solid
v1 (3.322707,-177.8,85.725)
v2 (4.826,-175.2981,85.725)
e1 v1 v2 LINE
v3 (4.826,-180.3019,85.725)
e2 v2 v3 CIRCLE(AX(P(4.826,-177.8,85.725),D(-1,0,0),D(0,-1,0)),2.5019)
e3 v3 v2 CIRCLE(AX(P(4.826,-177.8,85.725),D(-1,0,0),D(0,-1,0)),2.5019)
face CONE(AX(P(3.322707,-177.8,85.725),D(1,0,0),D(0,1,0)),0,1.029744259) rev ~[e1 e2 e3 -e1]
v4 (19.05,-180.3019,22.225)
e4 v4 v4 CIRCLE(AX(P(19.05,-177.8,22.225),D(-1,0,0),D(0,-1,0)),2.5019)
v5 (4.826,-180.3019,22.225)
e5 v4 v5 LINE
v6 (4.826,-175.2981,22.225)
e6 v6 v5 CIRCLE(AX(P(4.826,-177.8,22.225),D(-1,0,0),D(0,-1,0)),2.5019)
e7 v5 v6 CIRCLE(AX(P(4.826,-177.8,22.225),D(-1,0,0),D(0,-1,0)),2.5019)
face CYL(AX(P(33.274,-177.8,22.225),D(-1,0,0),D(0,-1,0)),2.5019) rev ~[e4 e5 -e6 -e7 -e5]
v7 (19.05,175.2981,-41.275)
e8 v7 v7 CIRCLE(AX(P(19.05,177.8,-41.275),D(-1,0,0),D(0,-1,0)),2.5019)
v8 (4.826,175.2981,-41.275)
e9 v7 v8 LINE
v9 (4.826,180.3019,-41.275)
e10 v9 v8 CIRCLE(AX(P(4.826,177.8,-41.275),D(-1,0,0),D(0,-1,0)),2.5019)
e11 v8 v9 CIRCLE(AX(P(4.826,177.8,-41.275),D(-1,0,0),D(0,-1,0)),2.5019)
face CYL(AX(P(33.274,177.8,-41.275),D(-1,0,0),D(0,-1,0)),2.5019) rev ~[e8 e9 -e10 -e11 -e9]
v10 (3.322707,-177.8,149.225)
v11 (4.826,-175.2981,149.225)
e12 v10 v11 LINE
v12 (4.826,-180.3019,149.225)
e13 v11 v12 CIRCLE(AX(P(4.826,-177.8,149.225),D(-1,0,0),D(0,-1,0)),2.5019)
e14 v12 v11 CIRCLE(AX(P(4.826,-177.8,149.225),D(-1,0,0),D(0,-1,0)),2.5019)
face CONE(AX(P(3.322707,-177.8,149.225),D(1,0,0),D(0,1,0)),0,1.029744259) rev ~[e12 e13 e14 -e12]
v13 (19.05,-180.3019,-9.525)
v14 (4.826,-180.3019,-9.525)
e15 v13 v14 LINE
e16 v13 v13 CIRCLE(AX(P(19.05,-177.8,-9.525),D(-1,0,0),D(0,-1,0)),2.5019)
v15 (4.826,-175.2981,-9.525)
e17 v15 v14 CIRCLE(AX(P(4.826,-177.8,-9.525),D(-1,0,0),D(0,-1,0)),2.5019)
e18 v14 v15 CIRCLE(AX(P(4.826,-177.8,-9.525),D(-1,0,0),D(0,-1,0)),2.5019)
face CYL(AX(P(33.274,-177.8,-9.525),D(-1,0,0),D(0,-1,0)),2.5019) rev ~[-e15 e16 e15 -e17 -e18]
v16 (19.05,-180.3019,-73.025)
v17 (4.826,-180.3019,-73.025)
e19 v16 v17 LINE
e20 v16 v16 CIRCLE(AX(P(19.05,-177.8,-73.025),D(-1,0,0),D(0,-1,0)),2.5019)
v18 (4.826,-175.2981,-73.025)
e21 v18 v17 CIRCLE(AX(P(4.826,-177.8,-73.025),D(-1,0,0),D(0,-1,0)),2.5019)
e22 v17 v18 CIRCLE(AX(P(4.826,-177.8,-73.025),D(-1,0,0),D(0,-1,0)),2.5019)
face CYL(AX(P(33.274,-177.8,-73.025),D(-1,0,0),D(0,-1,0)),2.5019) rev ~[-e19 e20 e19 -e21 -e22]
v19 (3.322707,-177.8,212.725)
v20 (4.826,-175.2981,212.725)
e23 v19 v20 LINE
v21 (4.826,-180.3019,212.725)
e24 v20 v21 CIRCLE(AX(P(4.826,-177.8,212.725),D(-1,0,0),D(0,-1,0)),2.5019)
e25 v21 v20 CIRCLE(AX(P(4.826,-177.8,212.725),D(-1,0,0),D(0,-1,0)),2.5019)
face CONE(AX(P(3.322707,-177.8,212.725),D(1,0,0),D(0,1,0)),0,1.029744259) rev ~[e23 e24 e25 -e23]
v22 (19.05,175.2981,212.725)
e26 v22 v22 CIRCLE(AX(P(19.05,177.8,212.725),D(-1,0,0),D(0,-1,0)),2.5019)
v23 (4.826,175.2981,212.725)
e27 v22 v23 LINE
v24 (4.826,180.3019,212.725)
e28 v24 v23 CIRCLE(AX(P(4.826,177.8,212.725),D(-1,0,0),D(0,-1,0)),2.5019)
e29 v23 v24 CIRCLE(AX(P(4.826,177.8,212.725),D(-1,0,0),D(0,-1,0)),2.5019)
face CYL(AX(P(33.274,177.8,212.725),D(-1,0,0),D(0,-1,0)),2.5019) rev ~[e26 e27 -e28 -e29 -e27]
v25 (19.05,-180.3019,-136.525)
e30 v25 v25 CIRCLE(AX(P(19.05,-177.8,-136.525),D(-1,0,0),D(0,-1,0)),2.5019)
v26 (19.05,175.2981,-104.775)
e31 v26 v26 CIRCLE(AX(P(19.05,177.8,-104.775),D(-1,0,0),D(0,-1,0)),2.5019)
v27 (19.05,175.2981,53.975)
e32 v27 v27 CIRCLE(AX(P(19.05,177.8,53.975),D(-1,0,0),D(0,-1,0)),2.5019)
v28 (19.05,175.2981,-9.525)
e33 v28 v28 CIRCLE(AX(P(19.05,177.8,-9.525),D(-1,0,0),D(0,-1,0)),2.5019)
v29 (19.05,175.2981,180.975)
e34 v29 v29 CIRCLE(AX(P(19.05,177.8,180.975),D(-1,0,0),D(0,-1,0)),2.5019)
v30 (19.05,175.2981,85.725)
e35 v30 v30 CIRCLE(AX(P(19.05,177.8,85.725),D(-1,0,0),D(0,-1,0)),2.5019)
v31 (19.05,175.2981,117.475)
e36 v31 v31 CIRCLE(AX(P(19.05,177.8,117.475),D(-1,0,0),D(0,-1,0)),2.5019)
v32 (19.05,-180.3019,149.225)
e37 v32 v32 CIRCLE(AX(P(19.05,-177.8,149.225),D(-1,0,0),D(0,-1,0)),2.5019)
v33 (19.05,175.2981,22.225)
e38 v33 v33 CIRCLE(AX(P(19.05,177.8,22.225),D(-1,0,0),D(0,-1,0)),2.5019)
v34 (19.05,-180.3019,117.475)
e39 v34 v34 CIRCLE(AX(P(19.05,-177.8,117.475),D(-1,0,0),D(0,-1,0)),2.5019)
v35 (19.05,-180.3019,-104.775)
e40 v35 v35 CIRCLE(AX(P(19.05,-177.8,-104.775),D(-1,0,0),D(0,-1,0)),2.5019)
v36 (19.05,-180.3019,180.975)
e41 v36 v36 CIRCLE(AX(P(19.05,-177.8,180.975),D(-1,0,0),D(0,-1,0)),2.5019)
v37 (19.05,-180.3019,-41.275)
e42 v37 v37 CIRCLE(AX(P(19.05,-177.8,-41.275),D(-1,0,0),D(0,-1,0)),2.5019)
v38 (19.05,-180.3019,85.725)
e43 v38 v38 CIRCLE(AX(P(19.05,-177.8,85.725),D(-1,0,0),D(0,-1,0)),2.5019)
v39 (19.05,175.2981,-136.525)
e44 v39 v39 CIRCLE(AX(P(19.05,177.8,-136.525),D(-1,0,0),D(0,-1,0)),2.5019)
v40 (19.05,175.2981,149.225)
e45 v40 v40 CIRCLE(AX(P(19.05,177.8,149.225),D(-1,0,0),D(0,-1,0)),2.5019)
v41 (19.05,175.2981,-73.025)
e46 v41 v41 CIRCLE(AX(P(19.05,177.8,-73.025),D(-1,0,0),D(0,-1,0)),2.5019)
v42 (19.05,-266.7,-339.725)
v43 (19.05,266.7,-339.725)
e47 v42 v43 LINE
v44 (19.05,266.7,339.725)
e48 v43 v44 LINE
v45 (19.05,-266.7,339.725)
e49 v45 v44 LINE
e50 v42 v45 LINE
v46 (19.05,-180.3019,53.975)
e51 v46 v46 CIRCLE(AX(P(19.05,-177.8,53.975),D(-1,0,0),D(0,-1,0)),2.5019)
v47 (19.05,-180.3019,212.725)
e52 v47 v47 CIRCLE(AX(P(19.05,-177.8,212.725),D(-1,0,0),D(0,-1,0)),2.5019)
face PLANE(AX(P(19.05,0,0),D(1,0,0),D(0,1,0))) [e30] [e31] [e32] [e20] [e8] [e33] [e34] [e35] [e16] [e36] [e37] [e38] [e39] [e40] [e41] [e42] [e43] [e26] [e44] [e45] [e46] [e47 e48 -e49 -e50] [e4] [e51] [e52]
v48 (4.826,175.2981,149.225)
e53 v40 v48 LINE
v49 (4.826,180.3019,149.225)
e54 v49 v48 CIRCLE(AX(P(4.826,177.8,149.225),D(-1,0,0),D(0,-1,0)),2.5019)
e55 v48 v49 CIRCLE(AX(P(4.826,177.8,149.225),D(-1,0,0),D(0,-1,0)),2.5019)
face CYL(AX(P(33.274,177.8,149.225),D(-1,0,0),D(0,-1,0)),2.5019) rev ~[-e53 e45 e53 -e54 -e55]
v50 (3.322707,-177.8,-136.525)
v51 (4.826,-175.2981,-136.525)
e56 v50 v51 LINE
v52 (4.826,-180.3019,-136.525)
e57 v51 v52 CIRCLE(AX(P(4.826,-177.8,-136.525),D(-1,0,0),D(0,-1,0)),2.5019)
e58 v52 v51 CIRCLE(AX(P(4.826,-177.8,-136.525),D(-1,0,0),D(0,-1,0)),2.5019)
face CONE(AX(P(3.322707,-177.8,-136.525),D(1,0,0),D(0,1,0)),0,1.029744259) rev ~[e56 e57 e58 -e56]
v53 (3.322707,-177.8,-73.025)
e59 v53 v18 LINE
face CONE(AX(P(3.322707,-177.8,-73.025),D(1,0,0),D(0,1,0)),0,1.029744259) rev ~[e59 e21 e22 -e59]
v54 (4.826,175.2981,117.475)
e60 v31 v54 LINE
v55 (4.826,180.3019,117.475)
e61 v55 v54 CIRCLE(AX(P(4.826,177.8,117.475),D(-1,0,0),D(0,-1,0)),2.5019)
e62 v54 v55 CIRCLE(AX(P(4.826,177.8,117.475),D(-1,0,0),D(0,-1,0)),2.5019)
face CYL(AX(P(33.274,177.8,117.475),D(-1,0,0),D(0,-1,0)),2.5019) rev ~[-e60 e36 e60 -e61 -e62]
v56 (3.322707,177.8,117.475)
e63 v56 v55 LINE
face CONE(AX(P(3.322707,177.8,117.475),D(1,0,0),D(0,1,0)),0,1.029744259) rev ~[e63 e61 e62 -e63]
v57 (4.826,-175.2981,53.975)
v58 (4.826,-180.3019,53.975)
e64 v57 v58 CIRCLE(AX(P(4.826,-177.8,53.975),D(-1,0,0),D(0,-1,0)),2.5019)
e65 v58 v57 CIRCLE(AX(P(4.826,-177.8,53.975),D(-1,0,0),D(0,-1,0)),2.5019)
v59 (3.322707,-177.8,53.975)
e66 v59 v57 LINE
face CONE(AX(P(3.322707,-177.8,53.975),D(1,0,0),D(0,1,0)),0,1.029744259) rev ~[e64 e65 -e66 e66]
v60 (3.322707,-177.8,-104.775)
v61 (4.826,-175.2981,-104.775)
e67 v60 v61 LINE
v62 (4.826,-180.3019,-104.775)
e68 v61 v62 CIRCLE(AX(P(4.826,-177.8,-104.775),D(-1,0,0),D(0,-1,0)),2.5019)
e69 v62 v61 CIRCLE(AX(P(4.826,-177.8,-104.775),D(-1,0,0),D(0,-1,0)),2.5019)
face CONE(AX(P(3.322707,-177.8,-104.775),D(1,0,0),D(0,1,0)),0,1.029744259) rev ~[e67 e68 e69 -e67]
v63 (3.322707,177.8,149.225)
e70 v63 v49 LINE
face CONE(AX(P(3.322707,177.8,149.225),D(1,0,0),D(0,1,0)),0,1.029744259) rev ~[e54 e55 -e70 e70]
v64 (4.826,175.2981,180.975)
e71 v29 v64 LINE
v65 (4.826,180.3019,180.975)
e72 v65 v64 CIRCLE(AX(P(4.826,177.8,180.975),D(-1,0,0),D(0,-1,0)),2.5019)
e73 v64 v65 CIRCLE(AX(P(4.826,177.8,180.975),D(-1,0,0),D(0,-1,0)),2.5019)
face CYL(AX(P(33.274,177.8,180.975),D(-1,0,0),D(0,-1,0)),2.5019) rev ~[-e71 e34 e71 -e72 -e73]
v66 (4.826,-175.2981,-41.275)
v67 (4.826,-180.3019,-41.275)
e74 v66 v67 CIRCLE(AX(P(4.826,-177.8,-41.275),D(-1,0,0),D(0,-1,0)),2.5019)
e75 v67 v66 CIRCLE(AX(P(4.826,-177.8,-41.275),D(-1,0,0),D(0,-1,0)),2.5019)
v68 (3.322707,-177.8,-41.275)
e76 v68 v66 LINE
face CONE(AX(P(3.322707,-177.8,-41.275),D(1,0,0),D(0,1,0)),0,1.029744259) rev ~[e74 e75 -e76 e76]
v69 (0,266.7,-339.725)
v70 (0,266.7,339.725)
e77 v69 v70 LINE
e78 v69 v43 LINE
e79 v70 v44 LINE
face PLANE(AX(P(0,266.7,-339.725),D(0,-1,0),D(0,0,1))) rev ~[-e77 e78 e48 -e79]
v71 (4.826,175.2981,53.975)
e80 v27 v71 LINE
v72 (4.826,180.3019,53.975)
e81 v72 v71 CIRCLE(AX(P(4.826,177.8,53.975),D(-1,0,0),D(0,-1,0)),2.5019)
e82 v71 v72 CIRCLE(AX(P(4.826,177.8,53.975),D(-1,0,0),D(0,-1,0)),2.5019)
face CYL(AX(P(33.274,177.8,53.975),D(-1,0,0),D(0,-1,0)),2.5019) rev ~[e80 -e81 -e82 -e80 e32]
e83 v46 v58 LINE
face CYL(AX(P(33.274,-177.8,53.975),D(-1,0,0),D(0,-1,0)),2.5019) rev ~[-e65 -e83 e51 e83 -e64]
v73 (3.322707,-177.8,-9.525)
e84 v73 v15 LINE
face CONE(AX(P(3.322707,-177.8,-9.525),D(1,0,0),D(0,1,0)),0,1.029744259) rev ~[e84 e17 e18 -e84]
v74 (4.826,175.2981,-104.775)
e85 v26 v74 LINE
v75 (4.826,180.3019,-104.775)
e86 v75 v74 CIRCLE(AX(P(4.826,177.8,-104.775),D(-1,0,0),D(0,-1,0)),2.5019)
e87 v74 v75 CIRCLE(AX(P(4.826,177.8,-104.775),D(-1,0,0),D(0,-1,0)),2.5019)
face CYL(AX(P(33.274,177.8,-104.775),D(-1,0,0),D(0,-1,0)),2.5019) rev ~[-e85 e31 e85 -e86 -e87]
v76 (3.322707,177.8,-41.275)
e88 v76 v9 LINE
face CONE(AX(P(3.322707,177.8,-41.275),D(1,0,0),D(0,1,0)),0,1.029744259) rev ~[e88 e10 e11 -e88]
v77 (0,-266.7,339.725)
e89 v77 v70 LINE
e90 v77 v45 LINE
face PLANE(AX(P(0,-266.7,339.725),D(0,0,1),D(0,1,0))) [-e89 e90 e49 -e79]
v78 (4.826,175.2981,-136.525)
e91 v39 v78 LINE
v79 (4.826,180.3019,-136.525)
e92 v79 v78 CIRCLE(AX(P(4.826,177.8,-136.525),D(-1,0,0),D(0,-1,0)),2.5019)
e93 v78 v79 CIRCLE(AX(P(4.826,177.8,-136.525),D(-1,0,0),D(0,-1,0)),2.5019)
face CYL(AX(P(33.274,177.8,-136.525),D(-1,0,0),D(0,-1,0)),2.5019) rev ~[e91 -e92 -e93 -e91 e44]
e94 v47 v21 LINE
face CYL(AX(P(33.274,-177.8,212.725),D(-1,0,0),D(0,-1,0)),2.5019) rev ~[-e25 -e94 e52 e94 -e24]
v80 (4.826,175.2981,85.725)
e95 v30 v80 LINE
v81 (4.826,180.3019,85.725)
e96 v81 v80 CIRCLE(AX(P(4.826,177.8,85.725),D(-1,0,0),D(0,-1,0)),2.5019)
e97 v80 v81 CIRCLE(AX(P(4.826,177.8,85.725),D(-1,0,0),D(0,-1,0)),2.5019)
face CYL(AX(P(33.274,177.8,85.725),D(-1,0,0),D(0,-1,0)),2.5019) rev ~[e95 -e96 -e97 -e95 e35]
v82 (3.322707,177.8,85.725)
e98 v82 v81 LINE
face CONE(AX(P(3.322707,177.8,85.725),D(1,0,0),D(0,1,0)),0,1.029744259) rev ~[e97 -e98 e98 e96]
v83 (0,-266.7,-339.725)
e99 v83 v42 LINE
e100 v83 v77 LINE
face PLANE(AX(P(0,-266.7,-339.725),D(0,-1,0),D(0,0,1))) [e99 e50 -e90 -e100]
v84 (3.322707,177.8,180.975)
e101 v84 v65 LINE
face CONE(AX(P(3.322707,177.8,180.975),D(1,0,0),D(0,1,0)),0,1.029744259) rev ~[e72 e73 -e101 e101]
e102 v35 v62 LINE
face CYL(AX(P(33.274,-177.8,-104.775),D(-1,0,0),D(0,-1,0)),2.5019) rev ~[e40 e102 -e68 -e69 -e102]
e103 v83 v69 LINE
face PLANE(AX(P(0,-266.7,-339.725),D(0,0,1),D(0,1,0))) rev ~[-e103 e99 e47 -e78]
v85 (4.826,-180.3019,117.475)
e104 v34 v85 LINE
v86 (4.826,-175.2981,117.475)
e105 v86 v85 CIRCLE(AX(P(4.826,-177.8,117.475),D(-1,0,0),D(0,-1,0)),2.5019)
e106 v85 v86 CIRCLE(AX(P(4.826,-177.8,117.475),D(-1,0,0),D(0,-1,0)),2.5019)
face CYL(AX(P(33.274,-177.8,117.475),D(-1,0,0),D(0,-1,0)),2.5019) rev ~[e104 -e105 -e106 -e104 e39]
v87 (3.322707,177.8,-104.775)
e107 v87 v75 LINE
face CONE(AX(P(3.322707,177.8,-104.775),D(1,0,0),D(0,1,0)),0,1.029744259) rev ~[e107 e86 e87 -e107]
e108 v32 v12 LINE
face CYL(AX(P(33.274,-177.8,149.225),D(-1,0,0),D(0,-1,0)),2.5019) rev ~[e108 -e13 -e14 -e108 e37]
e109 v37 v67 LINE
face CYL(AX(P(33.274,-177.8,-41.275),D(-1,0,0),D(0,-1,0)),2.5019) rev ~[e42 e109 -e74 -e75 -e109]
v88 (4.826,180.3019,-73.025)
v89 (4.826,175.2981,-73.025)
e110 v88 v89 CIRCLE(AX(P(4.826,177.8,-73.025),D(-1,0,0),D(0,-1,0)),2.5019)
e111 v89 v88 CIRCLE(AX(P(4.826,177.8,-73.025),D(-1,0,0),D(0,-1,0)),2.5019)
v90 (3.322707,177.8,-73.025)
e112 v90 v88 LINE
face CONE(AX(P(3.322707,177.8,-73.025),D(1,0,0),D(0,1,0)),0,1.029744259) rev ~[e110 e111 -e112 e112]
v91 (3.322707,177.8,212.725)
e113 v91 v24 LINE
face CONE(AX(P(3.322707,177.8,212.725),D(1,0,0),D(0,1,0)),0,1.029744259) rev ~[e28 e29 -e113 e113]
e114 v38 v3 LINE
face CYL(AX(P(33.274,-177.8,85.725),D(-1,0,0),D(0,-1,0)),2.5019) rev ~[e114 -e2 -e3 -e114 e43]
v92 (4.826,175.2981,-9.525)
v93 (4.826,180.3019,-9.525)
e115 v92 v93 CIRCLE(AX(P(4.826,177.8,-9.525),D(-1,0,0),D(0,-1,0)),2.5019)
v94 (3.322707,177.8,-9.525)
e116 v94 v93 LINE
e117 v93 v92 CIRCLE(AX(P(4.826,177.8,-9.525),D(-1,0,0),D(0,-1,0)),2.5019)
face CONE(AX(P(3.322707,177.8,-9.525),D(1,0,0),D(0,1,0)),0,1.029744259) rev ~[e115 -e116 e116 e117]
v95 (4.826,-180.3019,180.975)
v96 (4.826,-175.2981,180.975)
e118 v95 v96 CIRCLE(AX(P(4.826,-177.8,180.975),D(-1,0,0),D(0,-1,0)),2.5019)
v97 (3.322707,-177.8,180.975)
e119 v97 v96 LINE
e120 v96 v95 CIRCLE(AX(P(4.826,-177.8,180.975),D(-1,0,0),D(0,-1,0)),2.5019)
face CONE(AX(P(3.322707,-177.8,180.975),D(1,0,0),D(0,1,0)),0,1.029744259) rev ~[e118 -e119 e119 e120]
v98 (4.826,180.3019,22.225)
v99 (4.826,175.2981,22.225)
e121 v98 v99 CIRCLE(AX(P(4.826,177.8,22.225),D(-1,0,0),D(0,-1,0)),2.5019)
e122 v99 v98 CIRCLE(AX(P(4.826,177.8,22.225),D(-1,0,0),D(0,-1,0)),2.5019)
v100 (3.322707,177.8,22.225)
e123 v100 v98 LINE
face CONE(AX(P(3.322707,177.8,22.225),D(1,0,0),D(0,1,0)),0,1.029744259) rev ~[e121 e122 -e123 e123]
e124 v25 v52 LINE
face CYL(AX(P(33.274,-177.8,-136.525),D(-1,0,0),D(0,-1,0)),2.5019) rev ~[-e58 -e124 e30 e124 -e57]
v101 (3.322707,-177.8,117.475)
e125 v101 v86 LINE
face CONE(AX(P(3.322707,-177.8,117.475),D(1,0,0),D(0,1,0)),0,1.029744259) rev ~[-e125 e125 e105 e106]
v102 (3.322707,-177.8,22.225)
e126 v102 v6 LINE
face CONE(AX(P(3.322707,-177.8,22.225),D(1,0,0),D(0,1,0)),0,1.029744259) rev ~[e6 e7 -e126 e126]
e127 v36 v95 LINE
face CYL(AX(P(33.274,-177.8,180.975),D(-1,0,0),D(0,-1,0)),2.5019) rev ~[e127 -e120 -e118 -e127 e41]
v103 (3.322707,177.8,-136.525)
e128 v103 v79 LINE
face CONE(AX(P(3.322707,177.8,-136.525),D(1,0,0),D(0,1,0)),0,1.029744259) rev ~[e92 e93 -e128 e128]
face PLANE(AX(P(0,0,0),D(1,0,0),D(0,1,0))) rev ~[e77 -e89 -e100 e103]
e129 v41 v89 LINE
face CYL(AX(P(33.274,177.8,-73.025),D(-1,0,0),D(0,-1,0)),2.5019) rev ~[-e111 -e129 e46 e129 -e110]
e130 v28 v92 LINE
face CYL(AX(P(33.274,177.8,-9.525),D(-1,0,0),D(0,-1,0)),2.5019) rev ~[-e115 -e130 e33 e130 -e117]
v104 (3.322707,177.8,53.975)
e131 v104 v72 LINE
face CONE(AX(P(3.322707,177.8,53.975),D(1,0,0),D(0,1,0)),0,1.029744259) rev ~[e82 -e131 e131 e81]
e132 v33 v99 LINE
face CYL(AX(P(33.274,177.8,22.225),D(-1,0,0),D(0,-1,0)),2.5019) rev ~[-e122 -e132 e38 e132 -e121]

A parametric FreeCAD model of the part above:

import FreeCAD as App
import Part
import Sketcher

V = App.Vector
Q = App.Units.Quantity

doc = App.newDocument("Part")
body = doc.addObject("PartDesign::Body", "Body")

sketch1 = doc.addObject("Sketcher::SketchObject", "Sketch")
body.addObject(sketch1)
sketch1.AttachmentSupport = (doc.YZ_Plane, [""])
sketch1.MapMode = "FlatFace"
sketch1.addGeometry([
    Part.LineSegment(V(-267, 340, 0), V(-267, -340, 0)),
    Part.LineSegment(V(-267, -340, 0), V(267, -340, 0)),
    Part.LineSegment(V(267, -340, 0), V(267, 340, 0)),
    Part.LineSegment(V(267, 340, 0), V(-267, 340, 0)),
], False)
sketch1.addConstraint([
    Sketcher.Constraint("Coincident", 0, 2, 1, 1),
    Sketcher.Constraint("Coincident", 1, 2, 2, 1),
    Sketcher.Constraint("Coincident", 2, 2, 3, 1),
    Sketcher.Constraint("Coincident", 3, 2, 0, 1),
    Sketcher.Constraint("Vertical", 0),
    Sketcher.Constraint("Horizontal", 1),
    Sketcher.Constraint("Vertical", 2),
    Sketcher.Constraint("Horizontal", 3),
    Sketcher.Constraint("Symmetric", 0, 2, 2, 2, -1, 1),
    Sketcher.Constraint("DistanceX", 1, 1, 1, 2, Q("21 in")),
    Sketcher.Constraint("DistanceY", 0, 2, 0, 1, Q("26.75 in")),
])
pad1 = doc.addObject("PartDesign::Pad", "Pad")
body.addObject(pad1)
pad1.Profile = sketch1
pad1.Length = Q("0.75 in")

sketch2 = doc.addObject("Sketcher::SketchObject", "Sketch001")
body.addObject(sketch2)
sketch2.AttachmentSupport = (doc.YZ_Plane, [""])
sketch2.MapMode = "FlatFace"
sketch2.AttachmentOffset = App.Placement(V(0, 0, 0.75 * 25.4), App.Rotation())
sketch2.addGeometry([
    Part.Circle(V(-177.8, 212.7, 0), V(0, 0, 1), 2.5),
    Part.Circle(V(-177.8, 181, 0), V(0, 0, 1), 2.5),
    Part.Circle(V(-177.8, 149.2, 0), V(0, 0, 1), 2.5),
    Part.Circle(V(-177.8, 117.5, 0), V(0, 0, 1), 2.5),
    Part.Circle(V(-177.8, 85.7, 0), V(0, 0, 1), 2.5),
    Part.Circle(V(-177.8, 54, 0), V(0, 0, 1), 2.5),
    Part.Circle(V(-177.8, 22.2, 0), V(0, 0, 1), 2.5),
    Part.Circle(V(-177.8, -9.5, 0), V(0, 0, 1), 2.5),
    Part.Circle(V(-177.8, -41.3, 0), V(0, 0, 1), 2.5),
    Part.Circle(V(-177.8, -73, 0), V(0, 0, 1), 2.5),
    Part.Circle(V(-177.8, -104.8, 0), V(0, 0, 1), 2.5),
    Part.Circle(V(-177.8, -136.5, 0), V(0, 0, 1), 2.5),
    Part.Circle(V(177.8, -136.5, 0), V(0, 0, 1), 2.5),
    Part.Circle(V(177.8, -104.8, 0), V(0, 0, 1), 2.5),
    Part.Circle(V(177.8, -73, 0), V(0, 0, 1), 2.5),
    Part.Circle(V(177.8, -41.3, 0), V(0, 0, 1), 2.5),
    Part.Circle(V(177.8, -9.5, 0), V(0, 0, 1), 2.5),
    Part.Circle(V(177.8, 22.2, 0), V(0, 0, 1), 2.5),
    Part.Circle(V(177.8, 54, 0), V(0, 0, 1), 2.5),
    Part.Circle(V(177.8, 85.7, 0), V(0, 0, 1), 2.5),
    Part.Circle(V(177.8, 117.5, 0), V(0, 0, 1), 2.5),
    Part.Circle(V(177.8, 149.2, 0), V(0, 0, 1), 2.5),
    Part.Circle(V(177.8, 181, 0), V(0, 0, 1), 2.5),
    Part.Circle(V(177.8, 212.7, 0), V(0, 0, 1), 2.5),
], False)
sketch2.addConstraint([
    Sketcher.Constraint("Equal", 0, 1),
    Sketcher.Constraint("Equal", 1, 2),
    Sketcher.Constraint("Equal", 2, 3),
    Sketcher.Constraint("Equal", 3, 4),
    Sketcher.Constraint("Equal", 4, 5),
    Sketcher.Constraint("Equal", 5, 6),
    Sketcher.Constraint("Equal", 6, 7),
    Sketcher.Constraint("Equal", 7, 8),
    Sketcher.Constraint("Equal", 8, 9),
    Sketcher.Constraint("Equal", 9, 10),
    Sketcher.Constraint("Equal", 10, 11),
    Sketcher.Constraint("Equal", 11, 12),
    Sketcher.Constraint("Equal", 12, 13),
    Sketcher.Constraint("Equal", 13, 14),
    Sketcher.Constraint("Equal", 14, 15),
    Sketcher.Constraint("Equal", 15, 16),
    Sketcher.Constraint("Equal", 16, 17),
    Sketcher.Constraint("Equal", 17, 18),
    Sketcher.Constraint("Equal", 18, 19),
    Sketcher.Constraint("Equal", 19, 20),
    Sketcher.Constraint("Equal", 20, 21),
    Sketcher.Constraint("Equal", 21, 22),
    Sketcher.Constraint("Equal", 22, 23),
    Sketcher.Constraint("Symmetric", 11, 3, 12, 3, -2),
    Sketcher.Constraint("Symmetric", 10, 3, 13, 3, -2),
    Sketcher.Constraint("Symmetric", 9, 3, 14, 3, -2),
    Sketcher.Constraint("Symmetric", 8, 3, 15, 3, -2),
    Sketcher.Constraint("Symmetric", 7, 3, 16, 3, -2),
    Sketcher.Constraint("Symmetric", 6, 3, 17, 3, -2),
    Sketcher.Constraint("Symmetric", 5, 3, 18, 3, -2),
    Sketcher.Constraint("Symmetric", 4, 3, 19, 3, -2),
    Sketcher.Constraint("Symmetric", 3, 3, 20, 3, -2),
    Sketcher.Constraint("Symmetric", 2, 3, 21, 3, -2),
    Sketcher.Constraint("Symmetric", 1, 3, 22, 3, -2),
    Sketcher.Constraint("Symmetric", 0, 3, 23, 3, -2),
    Sketcher.Constraint("Vertical", 0, 3, 1, 3),
    Sketcher.Constraint("Vertical", 1, 3, 2, 3),
    Sketcher.Constraint("Vertical", 2, 3, 3, 3),
    Sketcher.Constraint("Vertical", 3, 3, 4, 3),
    Sketcher.Constraint("Vertical", 4, 3, 5, 3),
    Sketcher.Constraint("Vertical", 5, 3, 6, 3),
    Sketcher.Constraint("Vertical", 6, 3, 7, 3),
    Sketcher.Constraint("Vertical", 7, 3, 8, 3),
    Sketcher.Constraint("Vertical", 8, 3, 9, 3),
    Sketcher.Constraint("Vertical", 9, 3, 10, 3),
    Sketcher.Constraint("Vertical", 10, 3, 11, 3),
    Sketcher.Constraint("Diameter", 0, Q("0.197 in")),
    Sketcher.Constraint("DistanceX", 0, 3, -1, 1, Q("7 in")),
    Sketcher.Constraint("DistanceY", 4, 3, 0, 3, Q("5 in")),
    Sketcher.Constraint("DistanceY", 5, 3, 1, 3, Q("5 in")),
    Sketcher.Constraint("DistanceY", 6, 3, 2, 3, Q("5 in")),
    Sketcher.Constraint("DistanceY", 7, 3, 3, 3, Q("5 in")),
    Sketcher.Constraint("DistanceY", 8, 3, 4, 3, Q("5 in")),
    Sketcher.Constraint("DistanceY", 9, 3, 5, 3, Q("5 in")),
    Sketcher.Constraint("DistanceY", 10, 3, 6, 3, Q("5 in")),
    Sketcher.Constraint("DistanceY", 11, 3, 7, 3, Q("5 in")),
    Sketcher.Constraint("DistanceY", 2, 3, 0, 3, Q("2.5 in")),
    Sketcher.Constraint("DistanceY", 3, 3, 1, 3, Q("2.5 in")),
    Sketcher.Constraint("DistanceY", 1, 3, 0, 3, Q("1.25 in")),
    Sketcher.Constraint("DistanceY", -1, 1, 0, 3, Q("8.375 in")),
])
doc.recompute()
hole = doc.addObject("PartDesign::Hole", "Hole")
body.addObject(hole)
hole.Profile = sketch2
hole.ThreadType = "None"
hole.Diameter = Q("0.197 in")
hole.DepthType = "Dimension"
hole.Depth = Q("0.56 in")
hole.DrillPoint = "Angled"
hole.DrillPointAngle = 118

doc.recompute()
